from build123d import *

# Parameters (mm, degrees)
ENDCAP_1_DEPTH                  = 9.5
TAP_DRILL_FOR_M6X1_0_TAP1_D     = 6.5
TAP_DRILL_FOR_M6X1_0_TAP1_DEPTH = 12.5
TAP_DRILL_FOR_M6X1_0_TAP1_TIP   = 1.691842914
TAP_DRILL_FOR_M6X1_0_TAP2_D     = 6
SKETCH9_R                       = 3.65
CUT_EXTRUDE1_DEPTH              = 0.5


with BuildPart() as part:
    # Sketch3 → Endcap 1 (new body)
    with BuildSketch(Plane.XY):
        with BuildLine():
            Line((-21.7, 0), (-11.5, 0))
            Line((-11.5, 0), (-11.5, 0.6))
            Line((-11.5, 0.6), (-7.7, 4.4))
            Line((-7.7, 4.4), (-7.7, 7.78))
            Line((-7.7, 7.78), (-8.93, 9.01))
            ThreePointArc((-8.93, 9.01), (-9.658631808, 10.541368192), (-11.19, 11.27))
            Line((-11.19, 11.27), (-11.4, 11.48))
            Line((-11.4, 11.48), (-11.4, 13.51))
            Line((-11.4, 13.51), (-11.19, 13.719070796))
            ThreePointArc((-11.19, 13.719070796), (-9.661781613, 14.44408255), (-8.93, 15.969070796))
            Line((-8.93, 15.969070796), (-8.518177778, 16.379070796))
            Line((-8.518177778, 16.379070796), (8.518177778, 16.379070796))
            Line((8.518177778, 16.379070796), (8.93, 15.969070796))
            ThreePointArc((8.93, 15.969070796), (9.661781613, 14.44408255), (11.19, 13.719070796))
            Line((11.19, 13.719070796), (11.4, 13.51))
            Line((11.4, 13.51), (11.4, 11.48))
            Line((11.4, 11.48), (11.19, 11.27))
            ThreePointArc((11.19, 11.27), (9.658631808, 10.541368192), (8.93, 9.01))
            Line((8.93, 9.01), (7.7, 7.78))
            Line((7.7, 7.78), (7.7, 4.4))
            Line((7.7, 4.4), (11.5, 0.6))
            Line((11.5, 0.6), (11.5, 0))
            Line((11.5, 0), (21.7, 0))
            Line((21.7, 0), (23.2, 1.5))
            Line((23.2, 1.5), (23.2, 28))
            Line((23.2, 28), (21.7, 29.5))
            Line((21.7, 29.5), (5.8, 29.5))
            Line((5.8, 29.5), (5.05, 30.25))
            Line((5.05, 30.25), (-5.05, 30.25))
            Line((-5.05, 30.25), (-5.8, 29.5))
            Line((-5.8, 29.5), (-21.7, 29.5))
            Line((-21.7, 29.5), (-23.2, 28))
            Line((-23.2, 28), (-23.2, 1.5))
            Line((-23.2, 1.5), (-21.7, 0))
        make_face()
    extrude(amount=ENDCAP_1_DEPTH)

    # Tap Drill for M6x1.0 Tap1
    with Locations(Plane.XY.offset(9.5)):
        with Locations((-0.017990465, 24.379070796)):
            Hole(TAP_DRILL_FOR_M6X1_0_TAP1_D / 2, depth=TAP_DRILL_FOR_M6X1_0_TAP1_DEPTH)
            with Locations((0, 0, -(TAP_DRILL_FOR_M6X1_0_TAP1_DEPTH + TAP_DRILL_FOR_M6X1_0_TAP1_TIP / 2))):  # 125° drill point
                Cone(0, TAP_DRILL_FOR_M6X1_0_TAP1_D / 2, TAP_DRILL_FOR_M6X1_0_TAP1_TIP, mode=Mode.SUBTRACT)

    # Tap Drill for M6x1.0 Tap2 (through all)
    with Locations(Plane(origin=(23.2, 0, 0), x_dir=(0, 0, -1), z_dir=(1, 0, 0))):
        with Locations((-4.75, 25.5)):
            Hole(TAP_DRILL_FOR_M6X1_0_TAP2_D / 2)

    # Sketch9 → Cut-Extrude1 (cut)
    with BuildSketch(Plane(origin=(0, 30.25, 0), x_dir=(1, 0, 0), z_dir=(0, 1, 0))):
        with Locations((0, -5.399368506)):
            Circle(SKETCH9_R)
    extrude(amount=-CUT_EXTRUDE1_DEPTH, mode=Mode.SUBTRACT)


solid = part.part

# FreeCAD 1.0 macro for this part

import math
import FreeCAD as App
import Part
import Sketcher

doc = App.newDocument("Part")
body = doc.addObject("PartDesign::Body", "Body")

sketch1 = doc.addObject("Sketcher::SketchObject", "Sketch")
body.addObject(sketch1)
sketch1.AttachmentSupport = (doc.XY_Plane, [""])
sketch1.MapMode = "FlatFace"
sketch1.addGeometry([
    Part.LineSegment(App.Vector(-21.7, 0, 0), App.Vector(-11.5, 0, 0)),
    Part.LineSegment(App.Vector(-11.5, 0, 0), App.Vector(-11.5, 0.6, 0)),
    Part.LineSegment(App.Vector(-11.5, 0.6, 0), App.Vector(-7.7, 4.4, 0)),
    Part.LineSegment(App.Vector(-7.7, 4.4, 0), App.Vector(-7.7, 7.78, 0)),
    Part.LineSegment(App.Vector(-7.7, 7.78, 0), App.Vector(-8.93, 9.01, 0)),
    Part.ArcOfCircle(Part.Circle(App.Vector(-11.45, 8.75, 0), App.Vector(0, 0, 1), 2.533377), math.radians(5.890626), math.radians(84.109374)),
    Part.LineSegment(App.Vector(-11.19, 11.27, 0), App.Vector(-11.4, 11.48, 0)),
    Part.LineSegment(App.Vector(-11.4, 11.48, 0), App.Vector(-11.4, 13.51, 0)),
    Part.LineSegment(App.Vector(-11.4, 13.51, 0), App.Vector(-11.19, 13.719071, 0)),
    Part.ArcOfCircle(Part.Circle(App.Vector(-11.45, 16.240249, 0), App.Vector(0, 0, 1), 2.534549), math.radians(-84.112106), math.radians(-6.141977)),
    Part.LineSegment(App.Vector(-8.93, 15.969071, 0), App.Vector(-8.518178, 16.379071, 0)),
    Part.LineSegment(App.Vector(-8.518178, 16.379071, 0), App.Vector(8.518178, 16.379071, 0)),
    Part.LineSegment(App.Vector(8.518178, 16.379071, 0), App.Vector(8.93, 15.969071, 0)),
    Part.ArcOfCircle(Part.Circle(App.Vector(11.45, 16.240249, 0), App.Vector(0, 0, 1), 2.534549), math.radians(-173.858023), math.radians(-95.887894)),
    Part.LineSegment(App.Vector(11.19, 13.719071, 0), App.Vector(11.4, 13.51, 0)),
    Part.LineSegment(App.Vector(11.4, 13.51, 0), App.Vector(11.4, 11.48, 0)),
    Part.LineSegment(App.Vector(11.4, 11.48, 0), App.Vector(11.19, 11.27, 0)),
    Part.ArcOfCircle(Part.Circle(App.Vector(11.45, 8.75, 0), App.Vector(0, 0, 1), 2.533377), math.radians(95.890626), math.radians(174.109374)),
    Part.LineSegment(App.Vector(8.93, 9.01, 0), App.Vector(7.7, 7.78, 0)),
    Part.LineSegment(App.Vector(7.7, 7.78, 0), App.Vector(7.7, 4.4, 0)),
    Part.LineSegment(App.Vector(7.7, 4.4, 0), App.Vector(11.5, 0.6, 0)),
    Part.LineSegment(App.Vector(11.5, 0.6, 0), App.Vector(11.5, 0, 0)),
    Part.LineSegment(App.Vector(11.5, 0, 0), App.Vector(21.7, 0, 0)),
    Part.LineSegment(App.Vector(21.7, 0, 0), App.Vector(23.2, 1.5, 0)),
    Part.LineSegment(App.Vector(23.2, 1.5, 0), App.Vector(23.2, 28, 0)),
    Part.LineSegment(App.Vector(23.2, 28, 0), App.Vector(21.7, 29.5, 0)),
    Part.LineSegment(App.Vector(21.7, 29.5, 0), App.Vector(5.8, 29.5, 0)),
    Part.LineSegment(App.Vector(5.8, 29.5, 0), App.Vector(5.05, 30.25, 0)),
    Part.LineSegment(App.Vector(5.05, 30.25, 0), App.Vector(-5.05, 30.25, 0)),
    Part.LineSegment(App.Vector(-5.05, 30.25, 0), App.Vector(-5.8, 29.5, 0)),
    Part.LineSegment(App.Vector(-5.8, 29.5, 0), App.Vector(-21.7, 29.5, 0)),
    Part.LineSegment(App.Vector(-21.7, 29.5, 0), App.Vector(-23.2, 28, 0)),
    Part.LineSegment(App.Vector(-23.2, 28, 0), App.Vector(-23.2, 1.5, 0)),
    Part.LineSegment(App.Vector(-23.2, 1.5, 0), App.Vector(-21.7, 0, 0)),
], False)
sketch1.addConstraint([
    Sketcher.Constraint("Coincident", 0, 2, 1, 1),
    Sketcher.Constraint("Coincident", 1, 2, 2, 1),
    Sketcher.Constraint("Coincident", 2, 2, 3, 1),
    Sketcher.Constraint("Coincident", 3, 2, 4, 1),
    Sketcher.Constraint("Coincident", 4, 2, 5, 1),
    Sketcher.Constraint("Coincident", 5, 2, 6, 1),
    Sketcher.Constraint("Coincident", 6, 2, 7, 1),
    Sketcher.Constraint("Coincident", 7, 2, 8, 1),
    Sketcher.Constraint("Coincident", 8, 2, 9, 1),
    Sketcher.Constraint("Coincident", 9, 2, 10, 1),
    Sketcher.Constraint("Coincident", 10, 2, 11, 1),
    Sketcher.Constraint("Coincident", 11, 2, 12, 1),
    Sketcher.Constraint("Coincident", 12, 2, 13, 1),
    Sketcher.Constraint("Coincident", 13, 2, 14, 1),
    Sketcher.Constraint("Coincident", 14, 2, 15, 1),
    Sketcher.Constraint("Coincident", 15, 2, 16, 1),
    Sketcher.Constraint("Coincident", 16, 2, 17, 1),
    Sketcher.Constraint("Coincident", 17, 2, 18, 1),
    Sketcher.Constraint("Coincident", 18, 2, 19, 1),
    Sketcher.Constraint("Coincident", 19, 2, 20, 1),
    Sketcher.Constraint("Coincident", 20, 2, 21, 1),
    Sketcher.Constraint("Coincident", 21, 2, 22, 1),
    Sketcher.Constraint("Coincident", 22, 2, 23, 1),
    Sketcher.Constraint("Coincident", 23, 2, 24, 1),
    Sketcher.Constraint("Coincident", 24, 2, 25, 1),
    Sketcher.Constraint("Coincident", 25, 2, 26, 1),
    Sketcher.Constraint("Coincident", 26, 2, 27, 1),
    Sketcher.Constraint("Coincident", 27, 2, 28, 1),
    Sketcher.Constraint("Coincident", 28, 2, 29, 1),
    Sketcher.Constraint("Coincident", 29, 2, 30, 1),
    Sketcher.Constraint("Coincident", 30, 2, 31, 1),
    Sketcher.Constraint("Coincident", 31, 2, 32, 1),
    Sketcher.Constraint("Coincident", 32, 2, 33, 1),
    Sketcher.Constraint("Coincident", 33, 2, 0, 1),
    Sketcher.Constraint("Horizontal", 0),
    Sketcher.Constraint("Vertical", 1),
    Sketcher.Constraint("Vertical", 3),
    Sketcher.Constraint("Vertical", 7),
    Sketcher.Constraint("Horizontal", 11),
    Sketcher.Constraint("Vertical", 15),
    Sketcher.Constraint("Vertical", 19),
    Sketcher.Constraint("Vertical", 21),
    Sketcher.Constraint("Horizontal", 22),
    Sketcher.Constraint("Vertical", 24),
    Sketcher.Constraint("Horizontal", 26),
    Sketcher.Constraint("Horizontal", 28),
    Sketcher.Constraint("Horizontal", 30),
    Sketcher.Constraint("Vertical", 32),
    Sketcher.Constraint("Equal", 9, 13),
    Sketcher.Constraint("Equal", 5, 17),
    Sketcher.Constraint("Symmetric", 0, 2, 21, 2, -1, 1),
    Sketcher.Constraint("Symmetric", 9, 3, 13, 3, -2),
    Sketcher.Constraint("Symmetric", 5, 3, 17, 3, -2),
    Sketcher.Constraint("Symmetric", 7, 2, 14, 2, -2),
    Sketcher.Constraint("Symmetric", 3, 2, 18, 2, -2),
    Sketcher.Constraint("Symmetric", 26, 2, 29, 2, -2),
    Sketcher.Constraint("Symmetric", 24, 2, 31, 2, -2),
    Sketcher.Constraint("Symmetric", 22, 2, 33, 2, -2),
    Sketcher.Constraint("Perpendicular", 2, 4),
    Sketcher.Constraint("Parallel", 4, 6),
    Sketcher.Constraint("Parallel", 8, 10),
    Sketcher.Constraint("Parallel", 12, 14),
    Sketcher.Constraint("Perpendicular", 6, 16),
    Sketcher.Constraint("Parallel", 16, 18),
    Sketcher.Constraint("Perpendicular", 18, 20),
    Sketcher.Constraint("Perpendicular", 20, 23),
    Sketcher.Constraint("Perpendicular", 23, 25),
    Sketcher.Constraint("Parallel", 25, 27),
    Sketcher.Constraint("Perpendicular", 27, 29),
    Sketcher.Constraint("Parallel", 29, 31),
    Sketcher.Constraint("Perpendicular", 31, 33),
    Sketcher.Constraint("Horizontal", 9, 2, 12, 2),
    Sketcher.Constraint("Horizontal", 8, 2, 13, 2),
    Sketcher.Constraint("Horizontal", 6, 2, 15, 2),
    Sketcher.Constraint("Horizontal", 5, 2, 16, 2),
    Sketcher.Constraint("Horizontal", 2, 2, 19, 2),
    Sketcher.Constraint("Vertical", 5, 3, 9, 3),
    Sketcher.Constraint("Vertical", 5, 2, 8, 2),
    Sketcher.Constraint("Vertical", 4, 2, 9, 2),
    Sketcher.Constraint("Vertical", 22, 2, 25, 2),
    Sketcher.Constraint("DistanceX", 0, 1, 0, 2, 10.2),
    Sketcher.Constraint("DistanceX", 26, 2, 26, 1, 15.9),
    Sketcher.Constraint("DistanceX", 28, 2, 28, 1, 10.1),
    Sketcher.Constraint("DistanceY", 1, 1, 1, 2, 0.6),
    Sketcher.Constraint("DistanceY", 24, 1, 24, 2, 26.5),
    Sketcher.Constraint("DistanceY", -1, 1, 24, 2, 28.0),
    Sketcher.Constraint("DistanceX", 19, 2, 22, 2, 14.0),
    Sketcher.Constraint("DistanceY", 3, 1, 3, 2, 3.38),
    Sketcher.Constraint("DistanceY", 7, 1, 7, 2, 2.03),
    Sketcher.Constraint("DistanceX", 0, 2, -1, 1, 11.5),
    Sketcher.Constraint("DistanceX", 6, 2, -1, 1, 11.4),
    Sketcher.Constraint("DistanceX", 9, 3, 13, 3, 22.9),
    Sketcher.Constraint("DistanceY", 3, 2, 6, 2, 3.7),
    Sketcher.Constraint("DistanceY", 4, 2, 7, 2, 4.5),
    Sketcher.Constraint("DistanceY", -1, 1, 5, 3, 8.75),
    Sketcher.Constraint("Radius", 9, 2.534549),
    Sketcher.Constraint("DistanceY", 9, 2, 10, 2, 0.41),
    Sketcher.Constraint("Distance", 8, 0.296329),
])
pad1 = doc.addObject("PartDesign::Pad", "Pad")
body.addObject(pad1)
pad1.Profile = sketch1
pad1.Length = 9.5

sketch2 = doc.addObject("Sketcher::SketchObject", "Sketch001")
body.addObject(sketch2)
sketch2.AttachmentSupport = (doc.XY_Plane, [""])
sketch2.MapMode = "FlatFace"
sketch2.AttachmentOffset = App.Placement(App.Vector(0, 0, 9.5), App.Rotation())
sketch2.addGeometry(Part.Circle(App.Vector(-0.01799, 24.379071, 0), App.Vector(0, 0, 1), 3.25), False)
sketch2.addConstraint([
    Sketcher.Constraint("Diameter", 0, 6.5),
    Sketcher.Constraint("DistanceX", 0, 3, -1, 1, 0.01799),
    Sketcher.Constraint("DistanceY", -1, 1, 0, 3, 24.379071),
])
doc.recompute()
hole = doc.addObject("PartDesign::Hole", "Hole")
body.addObject(hole)
hole.Profile = sketch2
hole.ThreadType = "None"
hole.Diameter = 6.5
hole.DepthType = "Dimension"
hole.Depth = 12.5
hole.DrillPoint = "Angled"
hole.DrillPointAngle = 125

sketch3 = doc.addObject("Sketcher::SketchObject", "Sketch002")
body.addObject(sketch3)
sketch3.AttachmentSupport = (doc.YZ_Plane, [""])
sketch3.MapMode = "FlatFace"
sketch3.AttachmentOffset = App.Placement(App.Vector(0, 0, 23.2), App.Rotation())
sketch3.addGeometry(Part.Circle(App.Vector(25.5, 4.75, 0), App.Vector(0, 0, 1), 3), False)
sketch3.addConstraint([
    Sketcher.Constraint("Diameter", 0, 6.0),
    Sketcher.Constraint("DistanceX", -1, 1, 0, 3, 25.5),
    Sketcher.Constraint("DistanceY", -1, 1, 0, 3, 4.75),
])
doc.recompute()
hole2 = doc.addObject("PartDesign::Hole", "Hole001")
body.addObject(hole2)
hole2.Profile = sketch3
hole2.ThreadType = "None"
hole2.Diameter = 6
hole2.DepthType = "ThroughAll"

sketch4 = doc.addObject("Sketcher::SketchObject", "Sketch003")
body.addObject(sketch4)
sketch4.AttachmentSupport = (doc.XZ_Plane, [""])
sketch4.MapMode = "FlatFace"
sketch4.AttachmentOffset = App.Placement(App.Vector(0, 0, -30.25), App.Rotation())
sketch4.addGeometry(Part.Circle(App.Vector(0, 5.399369, 0), App.Vector(0, 0, 1), 3.65), False)
sketch4.addConstraint([
    Sketcher.Constraint("PointOnObject", 0, 3, -2),
    Sketcher.Constraint("Diameter", 0, 7.3),
    Sketcher.Constraint("DistanceY", -1, 1, 0, 3, 5.399369),
])
pocket1 = doc.addObject("PartDesign::Pocket", "Pocket")
body.addObject(pocket1)
pocket1.Profile = sketch4
pocket1.Length = 0.5
pocket1.Reversed = True

doc.recompute()
